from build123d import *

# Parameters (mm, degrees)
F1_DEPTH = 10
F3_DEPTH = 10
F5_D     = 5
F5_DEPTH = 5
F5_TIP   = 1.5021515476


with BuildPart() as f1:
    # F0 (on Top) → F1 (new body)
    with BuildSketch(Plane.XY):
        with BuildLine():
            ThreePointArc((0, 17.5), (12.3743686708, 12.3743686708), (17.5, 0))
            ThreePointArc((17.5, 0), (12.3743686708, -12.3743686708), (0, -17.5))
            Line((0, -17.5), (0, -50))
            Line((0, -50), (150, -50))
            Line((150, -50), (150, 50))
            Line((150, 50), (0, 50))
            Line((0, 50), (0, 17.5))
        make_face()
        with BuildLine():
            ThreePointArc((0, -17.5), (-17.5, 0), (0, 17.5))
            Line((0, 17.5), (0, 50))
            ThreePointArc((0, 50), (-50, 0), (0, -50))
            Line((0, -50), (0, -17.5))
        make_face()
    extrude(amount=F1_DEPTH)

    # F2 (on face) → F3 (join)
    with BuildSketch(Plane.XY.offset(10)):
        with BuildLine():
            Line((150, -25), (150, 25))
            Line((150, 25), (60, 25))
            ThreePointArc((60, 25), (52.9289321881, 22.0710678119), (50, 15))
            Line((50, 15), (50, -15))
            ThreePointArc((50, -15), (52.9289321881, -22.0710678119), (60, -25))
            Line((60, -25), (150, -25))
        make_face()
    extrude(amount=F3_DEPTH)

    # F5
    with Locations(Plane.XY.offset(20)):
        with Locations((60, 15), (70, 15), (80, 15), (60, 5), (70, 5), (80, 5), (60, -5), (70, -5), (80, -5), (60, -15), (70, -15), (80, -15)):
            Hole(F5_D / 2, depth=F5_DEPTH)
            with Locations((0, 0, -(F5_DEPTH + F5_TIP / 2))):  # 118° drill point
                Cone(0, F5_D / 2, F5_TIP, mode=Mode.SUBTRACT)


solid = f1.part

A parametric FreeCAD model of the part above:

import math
import FreeCAD as App
import Part
import Sketcher

V = App.Vector
Q = App.Units.Quantity

doc = App.newDocument("Part")
params = doc.addObject("Spreadsheet::Sheet", "Params")
for row, (alias, value) in enumerate([
    ("sketch1_radius", "50 mm"),
    ("sketch1_radius2", "17.5 mm"),
    ("sketch1_width", "150 mm"),
    ("pad1_length", "10 mm"),
    ("sketch2_radius", "10 mm"),
    ("sketch2_width", "90 mm"),
    ("sketch2_height", "50 mm"),
    ("pad2_length", "10 mm"),
    ("sketch3_diameter", "5 mm"),
    ("hole_diameter", "5 mm"),
    ("hole_depth", "5 mm"),
], start=1):
    params.set(f"A{row}", alias)
    params.set(f"B{row}", "=" + value)
    params.setAlias(f"B{row}", alias)

body = doc.addObject("PartDesign::Body", "Body")

# Sketch on XY plane
sketch1 = body.newObject("Sketcher::SketchObject", "Sketch")
sketch1.AttachmentSupport = (doc.getObject("XY_Plane"), [""])
sketch1.MapMode = "FlatFace"
sketch1.addGeometry([
    Part.LineSegment(V(0, -50, 0), V(150, -50, 0)),  # 0
    Part.LineSegment(V(150, -50, 0), V(150, 50, 0)),  # 1
    Part.LineSegment(V(150, 50, 0), V(0, 50, 0)),  # 2
    Part.ArcOfCircle(Part.Circle(V(0, 0, 0), V(0, 0, 1), 50), math.radians(90), math.radians(270)),  # 3
    Part.ArcOfCircle(Part.Circle(V(0, 0, 0), V(0, 0, 1), 18), math.radians(0), math.radians(90)),  # 4
    Part.ArcOfCircle(Part.Circle(V(0, 0, 0), V(0, 0, 1), 18), math.radians(-90), math.radians(0)),  # 5
    Part.ArcOfCircle(Part.Circle(V(0, 0, 0), V(0, 0, 1), 18), math.radians(90), math.radians(270)),  # 6
], False)
sketch1.addConstraint([
    Sketcher.Constraint("Coincident", 0, 2, 1, 1),
    Sketcher.Constraint("Coincident", 1, 2, 2, 1),
    Sketcher.Constraint("Tangent", 2, 2, 3, 1),
    Sketcher.Constraint("Tangent", 3, 2, 0, 1),
    Sketcher.Constraint("Tangent", 4, 1, 5, 2),
    Sketcher.Constraint("Tangent", 5, 1, 6, 2),
    Sketcher.Constraint("Tangent", 6, 1, 4, 2),
    Sketcher.Constraint("Horizontal", 0),
    Sketcher.Constraint("Vertical", 1),
    Sketcher.Constraint("Horizontal", 2),
    Sketcher.Constraint("Coincident", 3, 3, -1, 1),
    Sketcher.Constraint("Coincident", 4, 3, -1, 1),
    Sketcher.Constraint("PointOnObject", 4, 1, -1),
    Sketcher.Constraint("PointOnObject", 5, 1, -2),
    Sketcher.Constraint("PointOnObject", 6, 1, -2),
    Sketcher.Constraint("Radius", 3, Q("50 mm")),
    Sketcher.Constraint("Radius", 4, Q("17.5 mm")),
    Sketcher.Constraint("DistanceX", 0, 1, 0, 2, Q("150 mm")),
])
sketch1.setExpression("Constraints[15]", "Params.sketch1_radius")
sketch1.setExpression("Constraints[16]", "Params.sketch1_radius2")
sketch1.setExpression("Constraints[17]", "Params.sketch1_width")
pad1 = body.newObject("PartDesign::Pad", "Pad")
pad1.Profile = sketch1
pad1.setExpression("Length", "Params.pad1_length")

# Sketch on XY plane
sketch2 = body.newObject("Sketcher::SketchObject", "Sketch001")
sketch2.AttachmentSupport = (doc.getObject("XY_Plane"), [""])
sketch2.MapMode = "FlatFace"
sketch2.AttachmentOffset = App.Placement(V(0, 0, 10), App.Rotation())
sketch2.addGeometry([
    Part.LineSegment(V(150, -25, 0), V(150, 25, 0)),  # 0
    Part.LineSegment(V(150, 25, 0), V(60, 25, 0)),  # 1
    Part.ArcOfCircle(Part.Circle(V(60, 15, 0), V(0, 0, 1), 10), math.radians(90), math.radians(180)),  # 2
    Part.LineSegment(V(50, 15, 0), V(50, -15, 0)),  # 3
    Part.ArcOfCircle(Part.Circle(V(60, -15, 0), V(0, 0, 1), 10), math.radians(180), math.radians(270)),  # 4
    Part.LineSegment(V(60, -25, 0), V(150, -25, 0)),  # 5
], False)
sketch2.addConstraint([
    Sketcher.Constraint("Coincident", 0, 2, 1, 1),
    Sketcher.Constraint("Tangent", 1, 2, 2, 1),
    Sketcher.Constraint("Tangent", 2, 2, 3, 1),
    Sketcher.Constraint("Tangent", 3, 2, 4, 1),
    Sketcher.Constraint("Tangent", 4, 2, 5, 1),
    Sketcher.Constraint("Coincident", 5, 2, 0, 1),
    Sketcher.Constraint("Vertical", 0),
    Sketcher.Constraint("Horizontal", 1),
    Sketcher.Constraint("Vertical", 3),
    Sketcher.Constraint("Horizontal", 5),
    Sketcher.Constraint("Equal", 2, 4),
    Sketcher.Constraint("Radius", 2, Q("10 mm")),
    Sketcher.Constraint("DistanceX", 1, 2, 1, 1, Q("90 mm")),
    Sketcher.Constraint("DistanceY", 0, 1, 0, 2, Q("50 mm")),
    Sketcher.Constraint("DistanceX", -1, 1, 2, 3, Q("60 mm")),
    Sketcher.Constraint("DistanceY", -1, 1, 2, 3, Q("15 mm")),
])
sketch2.setExpression("Constraints[11]", "Params.sketch2_radius")
sketch2.setExpression("Constraints[12]", "Params.sketch2_width")
sketch2.setExpression("Constraints[13]", "Params.sketch2_height")
pad2 = body.newObject("PartDesign::Pad", "Pad001")
pad2.Profile = sketch2
pad2.setExpression("Length", "Params.pad2_length")

# Sketch on XY plane
sketch3 = body.newObject("Sketcher::SketchObject", "Sketch002")
sketch3.AttachmentSupport = (doc.getObject("XY_Plane"), [""])
sketch3.MapMode = "FlatFace"
sketch3.AttachmentOffset = App.Placement(V(0, 0, 20), App.Rotation())
sketch3.addGeometry([
    Part.Circle(V(60, 15, 0), V(0, 0, 1), 2.5),  # 0
    Part.Circle(V(70, 15, 0), V(0, 0, 1), 2.5),  # 1
    Part.Circle(V(80, 15, 0), V(0, 0, 1), 2.5),  # 2
    Part.Circle(V(60, 5, 0), V(0, 0, 1), 2.5),  # 3
    Part.Circle(V(70, 5, 0), V(0, 0, 1), 2.5),  # 4
    Part.Circle(V(80, 5, 0), V(0, 0, 1), 2.5),  # 5
    Part.Circle(V(60, -5, 0), V(0, 0, 1), 2.5),  # 6
    Part.Circle(V(70, -5, 0), V(0, 0, 1), 2.5),  # 7
    Part.Circle(V(80, -5, 0), V(0, 0, 1), 2.5),  # 8
    Part.Circle(V(60, -15, 0), V(0, 0, 1), 2.5),  # 9
    Part.Circle(V(70, -15, 0), V(0, 0, 1), 2.5),  # 10
    Part.Circle(V(80, -15, 0), V(0, 0, 1), 2.5),  # 11
], False)
sketch3.addConstraint([
    Sketcher.Constraint("Equal", 0, 1),
    Sketcher.Constraint("Equal", 1, 2),
    Sketcher.Constraint("Equal", 2, 3),
    Sketcher.Constraint("Equal", 3, 4),
    Sketcher.Constraint("Equal", 4, 5),
    Sketcher.Constraint("Equal", 5, 6),
    Sketcher.Constraint("Equal", 6, 7),
    Sketcher.Constraint("Equal", 7, 8),
    Sketcher.Constraint("Equal", 8, 9),
    Sketcher.Constraint("Equal", 9, 10),
    Sketcher.Constraint("Equal", 10, 11),
    Sketcher.Constraint("Symmetric", 3, 3, 6, 3, -1),
    Sketcher.Constraint("Symmetric", 4, 3, 7, 3, -1),
    Sketcher.Constraint("Symmetric", 5, 3, 8, 3, -1),
    Sketcher.Constraint("Symmetric", 0, 3, 9, 3, -1),
    Sketcher.Constraint("Symmetric", 1, 3, 10, 3, -1),
    Sketcher.Constraint("Symmetric", 2, 3, 11, 3, -1),
    Sketcher.Constraint("Horizontal", 0, 3, 1, 3),
    Sketcher.Constraint("Horizontal", 1, 3, 2, 3),
    Sketcher.Constraint("Horizontal", 3, 3, 4, 3),
    Sketcher.Constraint("Horizontal", 4, 3, 5, 3),
    Sketcher.Constraint("Vertical", 0, 3, 3, 3),
    Sketcher.Constraint("Vertical", 1, 3, 4, 3),
    Sketcher.Constraint("Vertical", 2, 3, 5, 3),
    Sketcher.Constraint("Diameter", 0, Q("5 mm")),
    Sketcher.Constraint("DistanceX", -1, 1, 0, 3, Q("60 mm")),
    Sketcher.Constraint("DistanceY", -1, 1, 0, 3, Q("15 mm")),
    Sketcher.Constraint("DistanceX", -1, 1, 1, 3, Q("70 mm")),
    Sketcher.Constraint("DistanceX", -1, 1, 2, 3, Q("80 mm")),
    Sketcher.Constraint("DistanceY", -1, 1, 3, 3, Q("5 mm")),
])
sketch3.setExpression("Constraints[24]", "Params.sketch3_diameter")
doc.recompute()
hole = body.newObject("PartDesign::Hole", "Hole")
hole.Profile = sketch3
hole.ThreadType = "None"
hole.setExpression("Diameter", "Params.hole_diameter")
hole.DepthType = "Dimension"
hole.setExpression("Depth", "Params.hole_depth")
hole.DrillPoint = "Angled"
hole.DrillPointAngle = 118

doc.recompute()
